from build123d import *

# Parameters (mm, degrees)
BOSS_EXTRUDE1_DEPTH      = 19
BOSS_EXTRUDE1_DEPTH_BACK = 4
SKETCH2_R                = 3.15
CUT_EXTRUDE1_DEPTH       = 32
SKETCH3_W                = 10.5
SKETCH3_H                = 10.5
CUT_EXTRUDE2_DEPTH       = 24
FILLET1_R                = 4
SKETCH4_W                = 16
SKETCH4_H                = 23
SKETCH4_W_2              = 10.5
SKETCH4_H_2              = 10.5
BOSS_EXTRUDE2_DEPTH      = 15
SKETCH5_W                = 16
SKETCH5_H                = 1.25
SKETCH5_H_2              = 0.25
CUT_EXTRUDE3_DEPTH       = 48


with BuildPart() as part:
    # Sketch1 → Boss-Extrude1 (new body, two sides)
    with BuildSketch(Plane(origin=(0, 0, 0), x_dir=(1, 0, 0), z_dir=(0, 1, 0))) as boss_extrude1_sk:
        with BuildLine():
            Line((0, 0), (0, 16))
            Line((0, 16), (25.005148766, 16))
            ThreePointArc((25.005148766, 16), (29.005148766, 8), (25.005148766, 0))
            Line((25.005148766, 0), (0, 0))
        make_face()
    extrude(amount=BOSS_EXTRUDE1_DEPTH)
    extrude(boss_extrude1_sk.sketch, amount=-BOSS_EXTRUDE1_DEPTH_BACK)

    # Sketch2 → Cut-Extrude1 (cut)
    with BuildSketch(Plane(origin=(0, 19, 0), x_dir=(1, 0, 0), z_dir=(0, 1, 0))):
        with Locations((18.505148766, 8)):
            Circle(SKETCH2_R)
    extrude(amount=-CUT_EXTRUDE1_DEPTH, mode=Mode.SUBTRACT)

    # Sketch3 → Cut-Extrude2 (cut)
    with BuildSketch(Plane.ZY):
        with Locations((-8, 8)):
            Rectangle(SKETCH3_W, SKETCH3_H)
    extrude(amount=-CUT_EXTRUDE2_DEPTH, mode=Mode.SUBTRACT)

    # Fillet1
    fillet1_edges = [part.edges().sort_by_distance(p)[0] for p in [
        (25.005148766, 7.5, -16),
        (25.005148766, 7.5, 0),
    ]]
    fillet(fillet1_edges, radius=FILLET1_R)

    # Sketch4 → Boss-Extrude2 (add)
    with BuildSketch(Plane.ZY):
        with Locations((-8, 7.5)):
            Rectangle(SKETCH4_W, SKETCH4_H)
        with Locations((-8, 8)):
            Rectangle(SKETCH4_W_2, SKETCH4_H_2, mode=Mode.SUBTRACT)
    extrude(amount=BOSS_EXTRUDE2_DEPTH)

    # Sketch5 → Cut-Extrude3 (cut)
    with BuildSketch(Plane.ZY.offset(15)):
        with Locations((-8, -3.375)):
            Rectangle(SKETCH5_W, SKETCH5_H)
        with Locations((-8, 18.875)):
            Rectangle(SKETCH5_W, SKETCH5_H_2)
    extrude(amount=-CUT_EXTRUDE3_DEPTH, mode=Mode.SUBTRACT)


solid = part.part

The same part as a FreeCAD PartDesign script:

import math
import FreeCAD as App
import Part
import Sketcher

V = App.Vector


def edges_at(feature, points):
    """Names of the edges that pass closest to the given points."""
    edges = feature.Shape.Edges
    near = lambda p: min(range(len(edges)), key=lambda i: edges[i].distToShape(Part.Vertex(*p))[0])
    return sorted({f"Edge{near(p) + 1}" for p in points})

doc = App.newDocument("Part")
body = doc.addObject("PartDesign::Body", "Body")

# Sketch on XZ plane
sketch1 = doc.addObject("Sketcher::SketchObject", "Sketch")
body.addObject(sketch1)
sketch1.AttachmentSupport = (doc.XZ_Plane, [""])
sketch1.MapMode = "FlatFace"
sketch1.addGeometry([
    Part.LineSegment(V(0, -16, 0), V(0, 0, 0)),
    Part.LineSegment(V(0, 0, 0), V(25, 0, 0)),
    Part.ArcOfCircle(Part.Circle(V(19, -8, 0), V(0, 0, 1), 10), math.radians(-53), math.radians(53)),
    Part.LineSegment(V(25, -16, 0), V(0, -16, 0)),
], False)
sketch1.addConstraint([
    Sketcher.Constraint("Coincident", 0, 2, 1, 1),
    Sketcher.Constraint("Coincident", 1, 2, 2, 2),
    Sketcher.Constraint("Coincident", 2, 1, 3, 1),
    Sketcher.Constraint("Coincident", 3, 2, 0, 1),
    Sketcher.Constraint("Vertical", 0),
    Sketcher.Constraint("Horizontal", 1),
    Sketcher.Constraint("Horizontal", 3),
    Sketcher.Constraint("Coincident", 0, 2, -1, 1),
    Sketcher.Constraint("Vertical", 1, 2, 2, 1),
    Sketcher.Constraint("Radius", 2, 10.0),
    Sketcher.Constraint("DistanceY", 0, 1, 0, 2, 16.0),
    Sketcher.Constraint("DistanceX", 1, 1, 1, 2, 25.005149),
])
pad1 = doc.addObject("PartDesign::Pad", "Pad")
body.addObject(pad1)
pad1.Profile = sketch1
pad1.Type = "TwoLengths"
pad1.Length = 19
pad1.Length2 = 4
pad1.Reversed = True

# Sketch on XZ plane
sketch2 = doc.addObject("Sketcher::SketchObject", "Sketch001")
body.addObject(sketch2)
sketch2.AttachmentSupport = (doc.XZ_Plane, [""])
sketch2.MapMode = "FlatFace"
sketch2.AttachmentOffset = App.Placement(V(0, 0, -19), App.Rotation())
sketch2.addGeometry(Part.Circle(V(18.5, -8, 0), V(0, 0, 1), 3.1), False)
sketch2.addConstraint([
    Sketcher.Constraint("Diameter", 0, 6.3),
    Sketcher.Constraint("DistanceY", 0, 3, -1, 1, 8.0),
    Sketcher.Constraint("DistanceX", -1, 1, 0, 3, 18.505149),
])
pocket1 = doc.addObject("PartDesign::Pocket", "Pocket")
body.addObject(pocket1)
pocket1.Profile = sketch2
pocket1.Length = 32
pocket1.Reversed = True

# Sketch on YZ plane
sketch3 = doc.addObject("Sketcher::SketchObject", "Sketch002")
body.addObject(sketch3)
sketch3.AttachmentSupport = (doc.YZ_Plane, [""])
sketch3.MapMode = "FlatFace"
sketch3.addGeometry([
    Part.LineSegment(V(13, -13, 0), V(3, -13, 0)),
    Part.LineSegment(V(3, -13, 0), V(3, -3, 0)),
    Part.LineSegment(V(3, -3, 0), V(13, -3, 0)),
    Part.LineSegment(V(13, -3, 0), V(13, -13, 0)),
], False)
sketch3.addConstraint([
    Sketcher.Constraint("Coincident", 0, 2, 1, 1),
    Sketcher.Constraint("Coincident", 1, 2, 2, 1),
    Sketcher.Constraint("Coincident", 2, 2, 3, 1),
    Sketcher.Constraint("Coincident", 3, 2, 0, 1),
    Sketcher.Constraint("Horizontal", 0),
    Sketcher.Constraint("Vertical", 1),
    Sketcher.Constraint("Horizontal", 2),
    Sketcher.Constraint("Vertical", 3),
    Sketcher.Constraint("Equal", 2, 1),
    Sketcher.Constraint("DistanceX", 0, 2, 0, 1, 10.5),
    Sketcher.Constraint("DistanceX", -1, 1, 0, 2, 2.75),
    Sketcher.Constraint("DistanceY", 0, 2, -1, 1, 13.25),
])
pocket2 = doc.addObject("PartDesign::Pocket", "Pocket001")
body.addObject(pocket2)
pocket2.Profile = sketch3
pocket2.Length = 24
pocket2.Reversed = True
doc.recompute()

fillet = doc.addObject("PartDesign::Fillet", "Fillet")
body.addObject(fillet)
fillet.Base = (pocket2, edges_at(pocket2, [(25.005, 7.5, -16), (25.005, 7.5, 0)]))
fillet.Radius = 4

# Sketch on YZ plane
sketch4 = doc.addObject("Sketcher::SketchObject", "Sketch003")
body.addObject(sketch4)
sketch4.AttachmentSupport = (doc.YZ_Plane, [""])
sketch4.MapMode = "FlatFace"
sketch4.addGeometry([
    Part.LineSegment(V(19, -16, 0), V(-4, -16, 0)),  # 0
    Part.LineSegment(V(-4, -16, 0), V(-4, 0, 0)),  # 1
    Part.LineSegment(V(-4, 0, 0), V(19, 0, 0)),  # 2
    Part.LineSegment(V(19, 0, 0), V(19, -16, 0)),  # 3
    Part.LineSegment(V(3, -3, 0), V(3, -13, 0)),  # 4
    Part.LineSegment(V(3, -13, 0), V(13, -13, 0)),  # 5
    Part.LineSegment(V(13, -13, 0), V(13, -3, 0)),  # 6
    Part.LineSegment(V(13, -3, 0), V(3, -3, 0)),  # 7
], False)
sketch4.addConstraint([
    Sketcher.Constraint("Coincident", 0, 2, 1, 1),
    Sketcher.Constraint("Coincident", 1, 2, 2, 1),
    Sketcher.Constraint("Coincident", 2, 2, 3, 1),
    Sketcher.Constraint("Coincident", 3, 2, 0, 1),
    Sketcher.Constraint("Coincident", 4, 2, 5, 1),
    Sketcher.Constraint("Coincident", 5, 2, 6, 1),
    Sketcher.Constraint("Coincident", 6, 2, 7, 1),
    Sketcher.Constraint("Coincident", 7, 2, 4, 1),
    Sketcher.Constraint("Horizontal", 0),
    Sketcher.Constraint("Vertical", 1),
    Sketcher.Constraint("Horizontal", 2),
    Sketcher.Constraint("Vertical", 3),
    Sketcher.Constraint("Vertical", 4),
    Sketcher.Constraint("Horizontal", 5),
    Sketcher.Constraint("Vertical", 6),
    Sketcher.Constraint("Horizontal", 7),
    Sketcher.Constraint("PointOnObject", 1, 2, -1),
    Sketcher.Constraint("Equal", 7, 4),
    Sketcher.Constraint("DistanceX", 0, 2, 0, 1, 23.0),
    Sketcher.Constraint("DistanceY", 1, 1, 1, 2, 16.0),
    Sketcher.Constraint("DistanceX", 5, 1, 5, 2, 10.5),
    Sketcher.Constraint("DistanceX", 0, 2, -1, 1, 4.0),
    Sketcher.Constraint("DistanceX", -1, 1, 4, 2, 2.75),
    Sketcher.Constraint("DistanceY", 4, 2, -1, 1, 13.25),
])
pad2 = doc.addObject("PartDesign::Pad", "Pad001")
body.addObject(pad2)
pad2.Profile = sketch4
pad2.Length = 15
pad2.Reversed = True

# Sketch on YZ plane
sketch5 = doc.addObject("Sketcher::SketchObject", "Sketch004")
body.addObject(sketch5)
sketch5.AttachmentSupport = (doc.YZ_Plane, [""])
sketch5.MapMode = "FlatFace"
sketch5.AttachmentOffset = App.Placement(V(0, 0, -15), App.Rotation())
sketch5.addGeometry([
    Part.LineSegment(V(-2.75, -16, 0), V(-4, -16, 0)),  # 0
    Part.LineSegment(V(-4, -16, 0), V(-4, 0, 0)),  # 1
    Part.LineSegment(V(-4, 0, 0), V(-2.75, 0, 0)),  # 2
    Part.LineSegment(V(-2.75, 0, 0), V(-2.75, -16, 0)),  # 3
    Part.LineSegment(V(19, -16, 0), V(18.75, -16, 0)),  # 4
    Part.LineSegment(V(18.75, -16, 0), V(18.75, 0, 0)),  # 5
    Part.LineSegment(V(18.75, 0, 0), V(19, 0, 0)),  # 6
    Part.LineSegment(V(19, 0, 0), V(19, -16, 0)),  # 7
], False)
sketch5.addConstraint([
    Sketcher.Constraint("Coincident", 0, 2, 1, 1),
    Sketcher.Constraint("Coincident", 1, 2, 2, 1),
    Sketcher.Constraint("Coincident", 2, 2, 3, 1),
    Sketcher.Constraint("Coincident", 3, 2, 0, 1),
    Sketcher.Constraint("Coincident", 4, 2, 5, 1),
    Sketcher.Constraint("Coincident", 5, 2, 6, 1),
    Sketcher.Constraint("Coincident", 6, 2, 7, 1),
    Sketcher.Constraint("Coincident", 7, 2, 4, 1),
    Sketcher.Constraint("Horizontal", 0),
    Sketcher.Constraint("Vertical", 1),
    Sketcher.Constraint("Horizontal", 2),
    Sketcher.Constraint("Vertical", 3),
    Sketcher.Constraint("Horizontal", 4),
    Sketcher.Constraint("Vertical", 5),
    Sketcher.Constraint("Horizontal", 6),
    Sketcher.Constraint("Vertical", 7),
    Sketcher.Constraint("PointOnObject", 1, 2, -1),
    Sketcher.Constraint("PointOnObject", 5, 2, -1),
    Sketcher.Constraint("Horizontal", 3, 2, 4, 2),
    Sketcher.Constraint("DistanceY", 1, 1, 1, 2, 16.0),
    Sketcher.Constraint("DistanceX", 0, 2, -1, 1, 4.0),
    Sketcher.Constraint("DistanceX", -1, 1, 6, 2, 19.0),
    Sketcher.Constraint("DistanceX", 0, 2, 0, 1, 1.25),
    Sketcher.Constraint("DistanceX", 4, 2, 4, 1, 0.25),
])
pocket3 = doc.addObject("PartDesign::Pocket", "Pocket002")
body.addObject(pocket3)
pocket3.Profile = sketch5
pocket3.Length = 48
pocket3.Reversed = True

doc.recompute()
